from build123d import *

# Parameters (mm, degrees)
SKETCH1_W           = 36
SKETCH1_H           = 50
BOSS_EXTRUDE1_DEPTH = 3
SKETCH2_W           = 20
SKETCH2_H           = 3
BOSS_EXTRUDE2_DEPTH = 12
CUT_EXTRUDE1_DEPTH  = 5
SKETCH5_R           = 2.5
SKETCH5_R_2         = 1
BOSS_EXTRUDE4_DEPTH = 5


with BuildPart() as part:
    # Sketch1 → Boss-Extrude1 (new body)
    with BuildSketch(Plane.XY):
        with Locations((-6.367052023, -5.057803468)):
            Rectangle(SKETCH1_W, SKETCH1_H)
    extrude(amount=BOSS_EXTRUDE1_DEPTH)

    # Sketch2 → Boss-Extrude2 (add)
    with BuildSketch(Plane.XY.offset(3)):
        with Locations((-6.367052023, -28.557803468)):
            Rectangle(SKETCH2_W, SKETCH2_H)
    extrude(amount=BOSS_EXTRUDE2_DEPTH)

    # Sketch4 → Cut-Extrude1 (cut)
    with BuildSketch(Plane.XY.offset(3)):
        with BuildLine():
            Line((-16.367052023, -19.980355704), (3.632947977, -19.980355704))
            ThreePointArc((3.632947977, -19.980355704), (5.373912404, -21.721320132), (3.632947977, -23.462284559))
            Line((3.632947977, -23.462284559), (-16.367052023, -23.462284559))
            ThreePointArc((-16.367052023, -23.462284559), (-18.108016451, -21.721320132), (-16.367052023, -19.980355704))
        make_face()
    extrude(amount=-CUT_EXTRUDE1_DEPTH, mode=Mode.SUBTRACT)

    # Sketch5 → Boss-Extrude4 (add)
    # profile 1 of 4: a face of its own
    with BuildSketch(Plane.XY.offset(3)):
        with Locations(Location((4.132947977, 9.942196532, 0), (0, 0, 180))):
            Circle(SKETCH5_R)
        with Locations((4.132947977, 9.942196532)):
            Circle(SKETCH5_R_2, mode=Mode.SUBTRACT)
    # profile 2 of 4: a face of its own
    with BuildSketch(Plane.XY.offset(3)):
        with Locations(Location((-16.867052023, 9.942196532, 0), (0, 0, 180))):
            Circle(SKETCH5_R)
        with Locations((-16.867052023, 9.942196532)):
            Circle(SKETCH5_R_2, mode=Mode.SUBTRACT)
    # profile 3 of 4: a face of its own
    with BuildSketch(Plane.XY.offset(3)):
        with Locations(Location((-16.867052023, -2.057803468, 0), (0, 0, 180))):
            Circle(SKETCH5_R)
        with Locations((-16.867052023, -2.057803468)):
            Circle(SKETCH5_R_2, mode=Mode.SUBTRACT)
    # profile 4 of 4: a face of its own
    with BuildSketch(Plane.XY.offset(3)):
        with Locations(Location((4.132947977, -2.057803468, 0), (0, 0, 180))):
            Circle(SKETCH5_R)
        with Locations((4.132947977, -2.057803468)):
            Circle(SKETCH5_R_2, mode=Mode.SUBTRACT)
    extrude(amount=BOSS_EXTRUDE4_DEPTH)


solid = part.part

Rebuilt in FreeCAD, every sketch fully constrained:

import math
import FreeCAD as App
import Part
import Sketcher
from FreeCAD import Vector
Q = App.Units.Quantity


def add_polygon(sketch, points):
    """Adds a closed chain of lines whose ends are joined by coincident constraints."""
    first, n = sketch.GeometryCount, len(points)
    for a, b in zip(points, points[1:] + points[:1]):
        sketch.addGeometry(Part.LineSegment(App.Vector(*a, 0), App.Vector(*b, 0)), False)
    for i in range(n):
        sketch.addConstraint(Sketcher.Constraint("Coincident", first + i, 2, first + (i + 1) % n, 1))

doc = App.newDocument("Part")
body = doc.addObject("PartDesign::Body", "Body")

# Sketch on XY plane
sketch1 = body.newObject("Sketcher::SketchObject", "Sketch")
sketch1.AttachmentSupport = (doc.getObject("XY_Plane"), [""])
sketch1.MapMode = "FlatFace"
add_polygon(sketch1, [(-24.367052, 19.942197), (-24.367052, -30.057803), (11.632948, -30.057803), (11.632948, 19.942197)])  # lines 0-3
sketch1.addConstraint(Sketcher.Constraint("Vertical", 0))
sketch1.addConstraint(Sketcher.Constraint("Horizontal", 1))
sketch1.addConstraint(Sketcher.Constraint("Vertical", 2))
sketch1.addConstraint(Sketcher.Constraint("Horizontal", 3))
sketch1.addConstraint(Sketcher.Constraint("DistanceX", 1, 1, 1, 2, Q("36 mm")))
sketch1.addConstraint(Sketcher.Constraint("DistanceY", 0, 2, 0, 1, Q("50 mm")))
sketch1.addConstraint(Sketcher.Constraint("DistanceX", 0, 2, -1, 1, Q("24.367052 mm")))
sketch1.addConstraint(Sketcher.Constraint("DistanceY", 0, 2, -1, 1, Q("30.057803 mm")))
pad1 = body.newObject("PartDesign::Pad", "Pad")
pad1.Profile = sketch1
pad1.Length = 3

# Sketch on XY plane
sketch2 = body.newObject("Sketcher::SketchObject", "Sketch001")
sketch2.AttachmentSupport = (doc.getObject("XY_Plane"), [""])
sketch2.MapMode = "FlatFace"
sketch2.AttachmentOffset = App.Placement(Vector(0, 0, 3), App.Rotation())
add_polygon(sketch2, [(-16.367052, -27.057803), (-16.367052, -30.057803), (3.632948, -30.057803), (3.632948, -27.057803)])  # lines 0-3
sketch2.addConstraint(Sketcher.Constraint("Vertical", 0))
sketch2.addConstraint(Sketcher.Constraint("Horizontal", 1))
sketch2.addConstraint(Sketcher.Constraint("Vertical", 2))
sketch2.addConstraint(Sketcher.Constraint("Horizontal", 3))
sketch2.addConstraint(Sketcher.Constraint("DistanceX", 1, 1, 1, 2, Q("20 mm")))
sketch2.addConstraint(Sketcher.Constraint("DistanceY", 0, 2, 0, 1, Q("3 mm")))
sketch2.addConstraint(Sketcher.Constraint("DistanceX", 0, 2, -1, 1, Q("16.367052 mm")))
sketch2.addConstraint(Sketcher.Constraint("DistanceY", 0, 2, -1, 1, Q("30.057803 mm")))
pad2 = body.newObject("PartDesign::Pad", "Pad001")
pad2.Profile = sketch2
pad2.Length = 12

# Sketch on XY plane
sketch3 = body.newObject("Sketcher::SketchObject", "Sketch002")
sketch3.AttachmentSupport = (doc.getObject("XY_Plane"), [""])
sketch3.MapMode = "FlatFace"
sketch3.AttachmentOffset = App.Placement(Vector(0, 0, 3), App.Rotation())
sketch3.addGeometry(Part.LineSegment(Vector(3.632948, -19.980356, 0), Vector(-16.367052, -19.980356, 0)), False)
sketch3.addGeometry(Part.ArcOfCircle(Part.Circle(Vector(-16.367052, -21.72132, 0), Vector(0, 0, 1), 1.740964), math.radians(90), math.radians(270)), False)
sketch3.addGeometry(Part.LineSegment(Vector(-16.367052, -23.462285, 0), Vector(3.632948, -23.462285, 0)), False)
sketch3.addGeometry(Part.ArcOfCircle(Part.Circle(Vector(3.632948, -21.72132, 0), Vector(0, 0, 1), 1.740964), math.radians(-90), math.radians(90)), False)
sketch3.addConstraint(Sketcher.Constraint("Tangent", 0, 2, 1, 1))
sketch3.addConstraint(Sketcher.Constraint("Tangent", 1, 2, 2, 1))
sketch3.addConstraint(Sketcher.Constraint("Tangent", 2, 2, 3, 1))
sketch3.addConstraint(Sketcher.Constraint("Tangent", 3, 2, 0, 1))
sketch3.addConstraint(Sketcher.Constraint("Horizontal", 0))
sketch3.addConstraint(Sketcher.Constraint("Horizontal", 2))
sketch3.addConstraint(Sketcher.Constraint("DistanceX", 0, 2, 0, 1, Q("20 mm")))
sketch3.addConstraint(Sketcher.Constraint("Radius", 1, Q("1.740964 mm")))
sketch3.addConstraint(Sketcher.Constraint("DistanceY", 1, 3, -1, 1, Q("21.72132 mm")))
sketch3.addConstraint(Sketcher.Constraint("DistanceX", 1, 3, -1, 1, Q("16.367052 mm")))
pocket1 = body.newObject("PartDesign::Pocket", "Pocket")
pocket1.Profile = sketch3
pocket1.Length = 5

# Sketch on XY plane
sketch4 = body.newObject("Sketcher::SketchObject", "Sketch003")
sketch4.AttachmentSupport = (doc.getObject("XY_Plane"), [""])
sketch4.MapMode = "FlatFace"
sketch4.AttachmentOffset = App.Placement(Vector(0, 0, 3), App.Rotation())
sketch4.addGeometry(Part.Circle(Vector(4.132948, 9.942197, 0), Vector(0, 0, 1), 2.5), False)
sketch4.addGeometry(Part.Circle(Vector(4.132948, 9.942197, 0), Vector(0, 0, 1), 1), False)
sketch4.addGeometry(Part.Circle(Vector(-16.867052, 9.942197, 0), Vector(0, 0, 1), 2.5), False)
sketch4.addGeometry(Part.Circle(Vector(-16.867052, 9.942197, 0), Vector(0, 0, 1), 1), False)
sketch4.addGeometry(Part.Circle(Vector(-16.867052, -2.057803, 0), Vector(0, 0, 1), 2.5), False)
sketch4.addGeometry(Part.Circle(Vector(-16.867052, -2.057803, 0), Vector(0, 0, 1), 1), False)
sketch4.addGeometry(Part.Circle(Vector(4.132948, -2.057803, 0), Vector(0, 0, 1), 2.5), False)
sketch4.addGeometry(Part.Circle(Vector(4.132948, -2.057803, 0), Vector(0, 0, 1), 1), False)
sketch4.addConstraint(Sketcher.Constraint("Coincident", 1, 3, 0, 3))
sketch4.addConstraint(Sketcher.Constraint("Coincident", 3, 3, 2, 3))
sketch4.addConstraint(Sketcher.Constraint("Coincident", 5, 3, 4, 3))
sketch4.addConstraint(Sketcher.Constraint("Coincident", 7, 3, 6, 3))
sketch4.addConstraint(Sketcher.Constraint("Equal", 0, 2))
sketch4.addConstraint(Sketcher.Constraint("Equal", 1, 3))
sketch4.addConstraint(Sketcher.Constraint("Equal", 2, 4))
sketch4.addConstraint(Sketcher.Constraint("Equal", 3, 5))
sketch4.addConstraint(Sketcher.Constraint("Equal", 4, 6))
sketch4.addConstraint(Sketcher.Constraint("Equal", 5, 7))
sketch4.addConstraint(Sketcher.Constraint("Horizontal", 1, 3, 2, 3))
sketch4.addConstraint(Sketcher.Constraint("Horizontal", 5, 3, 6, 3))
sketch4.addConstraint(Sketcher.Constraint("Vertical", 3, 3, 4, 3))
sketch4.addConstraint(Sketcher.Constraint("Vertical", 1, 3, 6, 3))
sketch4.addConstraint(Sketcher.Constraint("Diameter", 0, Q("5 mm")))
sketch4.addConstraint(Sketcher.Constraint("Diameter", 1, Q("2 mm")))
sketch4.addConstraint(Sketcher.Constraint("DistanceX", 2, 3, 0, 3, Q("21 mm")))
sketch4.addConstraint(Sketcher.Constraint("DistanceY", 4, 3, 2, 3, Q("12 mm")))
sketch4.addConstraint(Sketcher.Constraint("DistanceX", -1, 1, 0, 3, Q("4.132948 mm")))
sketch4.addConstraint(Sketcher.Constraint("DistanceY", -1, 1, 0, 3, Q("9.942197 mm")))
pad3 = body.newObject("PartDesign::Pad", "Pad002")
pad3.Profile = sketch4
pad3.Length = 5

doc.recompute()
